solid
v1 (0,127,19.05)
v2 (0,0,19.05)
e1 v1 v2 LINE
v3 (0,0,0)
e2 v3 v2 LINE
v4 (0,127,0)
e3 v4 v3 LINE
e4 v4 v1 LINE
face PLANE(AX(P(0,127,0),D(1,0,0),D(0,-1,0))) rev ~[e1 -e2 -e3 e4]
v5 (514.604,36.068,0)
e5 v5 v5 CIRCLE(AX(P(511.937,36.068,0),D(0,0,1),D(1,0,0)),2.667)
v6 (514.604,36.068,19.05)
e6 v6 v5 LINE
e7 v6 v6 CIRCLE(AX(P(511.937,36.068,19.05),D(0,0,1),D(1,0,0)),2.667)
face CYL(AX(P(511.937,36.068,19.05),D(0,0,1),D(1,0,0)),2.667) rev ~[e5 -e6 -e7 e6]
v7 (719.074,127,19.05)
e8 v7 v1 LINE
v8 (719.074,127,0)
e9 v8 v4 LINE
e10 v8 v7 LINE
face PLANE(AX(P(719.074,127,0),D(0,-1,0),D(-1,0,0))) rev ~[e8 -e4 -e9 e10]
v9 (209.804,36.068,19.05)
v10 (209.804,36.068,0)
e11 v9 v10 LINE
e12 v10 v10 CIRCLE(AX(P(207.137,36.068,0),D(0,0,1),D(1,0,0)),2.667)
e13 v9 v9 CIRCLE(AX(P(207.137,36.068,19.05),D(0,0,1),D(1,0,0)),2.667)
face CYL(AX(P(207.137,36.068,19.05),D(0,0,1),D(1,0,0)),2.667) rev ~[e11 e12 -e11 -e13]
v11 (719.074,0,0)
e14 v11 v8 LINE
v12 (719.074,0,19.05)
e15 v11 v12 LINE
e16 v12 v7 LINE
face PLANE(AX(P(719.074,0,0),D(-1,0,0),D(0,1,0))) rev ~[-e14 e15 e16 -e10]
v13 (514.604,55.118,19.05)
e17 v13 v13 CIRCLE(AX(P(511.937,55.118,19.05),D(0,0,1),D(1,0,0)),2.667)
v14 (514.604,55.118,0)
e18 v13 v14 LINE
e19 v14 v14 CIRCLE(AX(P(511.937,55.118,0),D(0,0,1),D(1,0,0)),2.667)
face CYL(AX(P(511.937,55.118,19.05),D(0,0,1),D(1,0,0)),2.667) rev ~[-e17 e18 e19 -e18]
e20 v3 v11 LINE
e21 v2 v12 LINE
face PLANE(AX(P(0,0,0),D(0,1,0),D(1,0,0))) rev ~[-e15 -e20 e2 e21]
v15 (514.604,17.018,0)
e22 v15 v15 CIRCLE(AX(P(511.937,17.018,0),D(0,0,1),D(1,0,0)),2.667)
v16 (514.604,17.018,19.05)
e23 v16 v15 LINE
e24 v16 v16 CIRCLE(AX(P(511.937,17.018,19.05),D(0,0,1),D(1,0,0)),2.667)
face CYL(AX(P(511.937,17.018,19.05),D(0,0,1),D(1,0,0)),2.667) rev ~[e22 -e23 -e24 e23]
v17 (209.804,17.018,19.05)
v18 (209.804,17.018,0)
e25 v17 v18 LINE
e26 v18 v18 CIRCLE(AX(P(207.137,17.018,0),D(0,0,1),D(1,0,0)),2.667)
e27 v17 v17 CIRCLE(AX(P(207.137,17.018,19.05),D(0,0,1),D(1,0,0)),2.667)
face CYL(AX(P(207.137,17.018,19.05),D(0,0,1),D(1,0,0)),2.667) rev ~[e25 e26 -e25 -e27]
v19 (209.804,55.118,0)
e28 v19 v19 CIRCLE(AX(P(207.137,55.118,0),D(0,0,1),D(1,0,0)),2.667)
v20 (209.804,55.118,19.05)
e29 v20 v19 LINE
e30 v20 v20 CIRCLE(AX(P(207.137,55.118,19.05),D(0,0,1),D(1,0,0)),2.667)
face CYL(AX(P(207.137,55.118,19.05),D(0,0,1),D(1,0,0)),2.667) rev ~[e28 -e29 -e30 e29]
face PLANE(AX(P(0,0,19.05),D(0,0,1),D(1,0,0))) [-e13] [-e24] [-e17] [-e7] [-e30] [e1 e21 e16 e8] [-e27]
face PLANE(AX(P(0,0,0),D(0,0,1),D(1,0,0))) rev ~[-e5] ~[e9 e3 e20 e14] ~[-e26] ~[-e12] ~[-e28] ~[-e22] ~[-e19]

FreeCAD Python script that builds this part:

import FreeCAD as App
import Part
import Sketcher

V = App.Vector
Q = App.Units.Quantity


def add_polygon(sketch, points):
    """Adds a closed chain of lines whose ends are joined by coincident constraints."""
    first, n = sketch.GeometryCount, len(points)
    for a, b in zip(points, points[1:] + points[:1]):
        sketch.addGeometry(Part.LineSegment(App.Vector(*a, 0), App.Vector(*b, 0)), False)
    for i in range(n):
        sketch.addConstraint(Sketcher.Constraint("Coincident", first + i, 2, first + (i + 1) % n, 1))

doc = App.newDocument("Part")
params = doc.addObject("Spreadsheet::Sheet", "Params")
for row, (alias, value) in enumerate([
    ("sketch1_height", "5 in"),
    ("sketch1_width", "28.31 in"),
    ("pad1_length", "0.75 in"),
    ("sketch2_diameter", "0.21 in"),
    ("pocket1_length", "0.75 in"),
], start=1):
    params.set(f"A{row}", alias)
    params.set(f"B{row}", "=" + value)
    params.setAlias(f"B{row}", alias)

body = doc.addObject("PartDesign::Body", "Body")

# Sketch on XY plane
sketch1 = body.newObject("Sketcher::SketchObject", "Sketch")
sketch1.AttachmentSupport = (doc.getObject("XY_Plane"), [""])
sketch1.MapMode = "FlatFace"
add_polygon(sketch1, [(0, 127), (0, 0), (719, 0), (719, 127)])  # lines 0-3
sketch1.addConstraint(Sketcher.Constraint("Vertical", 0))
sketch1.addConstraint(Sketcher.Constraint("Horizontal", 1))
sketch1.addConstraint(Sketcher.Constraint("Vertical", 2))
sketch1.addConstraint(Sketcher.Constraint("Horizontal", 3))
sketch1.addConstraint(Sketcher.Constraint("Coincident", 0, 2, -1, 1))
sketch1.addConstraint(Sketcher.Constraint("DistanceY", 0, 2, 0, 1, Q("5 in")))
sketch1.addConstraint(Sketcher.Constraint("DistanceX", 1, 1, 1, 2, Q("28.31 in")))
sketch1.setExpression("Constraints[9]", "Params.sketch1_height")
sketch1.setExpression("Constraints[10]", "Params.sketch1_width")
pad1 = body.newObject("PartDesign::Pad", "Pad")
pad1.Profile = sketch1
pad1.setExpression("Length", "Params.pad1_length")

# Sketch on XY plane
sketch2 = body.newObject("Sketcher::SketchObject", "Sketch001")
sketch2.AttachmentSupport = (doc.getObject("XY_Plane"), [""])
sketch2.MapMode = "FlatFace"
sketch2.AttachmentOffset = App.Placement(V(0, 0, 0.75 * 25.4), App.Rotation())
sketch2.addGeometry(Part.Circle(V(207.1, 17, 0), V(0, 0, 1), 2.7), False)
sketch2.addGeometry(Part.Circle(V(207.1, 36.1, 0), V(0, 0, 1), 2.7), False)
sketch2.addGeometry(Part.Circle(V(207.1, 55.1, 0), V(0, 0, 1), 2.7), False)
sketch2.addGeometry(Part.Circle(V(511.9, 17, 0), V(0, 0, 1), 2.7), False)
sketch2.addGeometry(Part.Circle(V(511.9, 36.1, 0), V(0, 0, 1), 2.7), False)
sketch2.addGeometry(Part.Circle(V(511.9, 55.1, 0), V(0, 0, 1), 2.7), False)
sketch2.addConstraint(Sketcher.Constraint("Equal", 0, 1))
sketch2.addConstraint(Sketcher.Constraint("Equal", 1, 2))
sketch2.addConstraint(Sketcher.Constraint("Equal", 2, 3))
sketch2.addConstraint(Sketcher.Constraint("Equal", 3, 4))
sketch2.addConstraint(Sketcher.Constraint("Equal", 4, 5))
sketch2.addConstraint(Sketcher.Constraint("Horizontal", 0, 3, 3, 3))
sketch2.addConstraint(Sketcher.Constraint("Horizontal", 1, 3, 4, 3))
sketch2.addConstraint(Sketcher.Constraint("Horizontal", 2, 3, 5, 3))
sketch2.addConstraint(Sketcher.Constraint("Vertical", 0, 3, 1, 3))
sketch2.addConstraint(Sketcher.Constraint("Vertical", 1, 3, 2, 3))
sketch2.addConstraint(Sketcher.Constraint("Vertical", 3, 3, 4, 3))
sketch2.addConstraint(Sketcher.Constraint("Vertical", 4, 3, 5, 3))
sketch2.addConstraint(Sketcher.Constraint("Diameter", 0, Q("0.21 in")))
sketch2.addConstraint(Sketcher.Constraint("DistanceY", -1, 1, 0, 3, Q("0.67 in")))
sketch2.addConstraint(Sketcher.Constraint("DistanceY", 0, 3, 1, 3, Q("0.75 in")))
sketch2.addConstraint(Sketcher.Constraint("DistanceY", 1, 3, 2, 3, Q("0.75 in")))
sketch2.addConstraint(Sketcher.Constraint("DistanceX", -1, 1, 0, 3, Q("8.155 in")))
sketch2.addConstraint(Sketcher.Constraint("DistanceX", 0, 3, 3, 3, Q("12 in")))
sketch2.setExpression("Constraints[12]", "Params.sketch2_diameter")
pocket1 = body.newObject("PartDesign::Pocket", "Pocket")
pocket1.Profile = sketch2
pocket1.setExpression("Length", "Params.pocket1_length")

doc.recompute()
